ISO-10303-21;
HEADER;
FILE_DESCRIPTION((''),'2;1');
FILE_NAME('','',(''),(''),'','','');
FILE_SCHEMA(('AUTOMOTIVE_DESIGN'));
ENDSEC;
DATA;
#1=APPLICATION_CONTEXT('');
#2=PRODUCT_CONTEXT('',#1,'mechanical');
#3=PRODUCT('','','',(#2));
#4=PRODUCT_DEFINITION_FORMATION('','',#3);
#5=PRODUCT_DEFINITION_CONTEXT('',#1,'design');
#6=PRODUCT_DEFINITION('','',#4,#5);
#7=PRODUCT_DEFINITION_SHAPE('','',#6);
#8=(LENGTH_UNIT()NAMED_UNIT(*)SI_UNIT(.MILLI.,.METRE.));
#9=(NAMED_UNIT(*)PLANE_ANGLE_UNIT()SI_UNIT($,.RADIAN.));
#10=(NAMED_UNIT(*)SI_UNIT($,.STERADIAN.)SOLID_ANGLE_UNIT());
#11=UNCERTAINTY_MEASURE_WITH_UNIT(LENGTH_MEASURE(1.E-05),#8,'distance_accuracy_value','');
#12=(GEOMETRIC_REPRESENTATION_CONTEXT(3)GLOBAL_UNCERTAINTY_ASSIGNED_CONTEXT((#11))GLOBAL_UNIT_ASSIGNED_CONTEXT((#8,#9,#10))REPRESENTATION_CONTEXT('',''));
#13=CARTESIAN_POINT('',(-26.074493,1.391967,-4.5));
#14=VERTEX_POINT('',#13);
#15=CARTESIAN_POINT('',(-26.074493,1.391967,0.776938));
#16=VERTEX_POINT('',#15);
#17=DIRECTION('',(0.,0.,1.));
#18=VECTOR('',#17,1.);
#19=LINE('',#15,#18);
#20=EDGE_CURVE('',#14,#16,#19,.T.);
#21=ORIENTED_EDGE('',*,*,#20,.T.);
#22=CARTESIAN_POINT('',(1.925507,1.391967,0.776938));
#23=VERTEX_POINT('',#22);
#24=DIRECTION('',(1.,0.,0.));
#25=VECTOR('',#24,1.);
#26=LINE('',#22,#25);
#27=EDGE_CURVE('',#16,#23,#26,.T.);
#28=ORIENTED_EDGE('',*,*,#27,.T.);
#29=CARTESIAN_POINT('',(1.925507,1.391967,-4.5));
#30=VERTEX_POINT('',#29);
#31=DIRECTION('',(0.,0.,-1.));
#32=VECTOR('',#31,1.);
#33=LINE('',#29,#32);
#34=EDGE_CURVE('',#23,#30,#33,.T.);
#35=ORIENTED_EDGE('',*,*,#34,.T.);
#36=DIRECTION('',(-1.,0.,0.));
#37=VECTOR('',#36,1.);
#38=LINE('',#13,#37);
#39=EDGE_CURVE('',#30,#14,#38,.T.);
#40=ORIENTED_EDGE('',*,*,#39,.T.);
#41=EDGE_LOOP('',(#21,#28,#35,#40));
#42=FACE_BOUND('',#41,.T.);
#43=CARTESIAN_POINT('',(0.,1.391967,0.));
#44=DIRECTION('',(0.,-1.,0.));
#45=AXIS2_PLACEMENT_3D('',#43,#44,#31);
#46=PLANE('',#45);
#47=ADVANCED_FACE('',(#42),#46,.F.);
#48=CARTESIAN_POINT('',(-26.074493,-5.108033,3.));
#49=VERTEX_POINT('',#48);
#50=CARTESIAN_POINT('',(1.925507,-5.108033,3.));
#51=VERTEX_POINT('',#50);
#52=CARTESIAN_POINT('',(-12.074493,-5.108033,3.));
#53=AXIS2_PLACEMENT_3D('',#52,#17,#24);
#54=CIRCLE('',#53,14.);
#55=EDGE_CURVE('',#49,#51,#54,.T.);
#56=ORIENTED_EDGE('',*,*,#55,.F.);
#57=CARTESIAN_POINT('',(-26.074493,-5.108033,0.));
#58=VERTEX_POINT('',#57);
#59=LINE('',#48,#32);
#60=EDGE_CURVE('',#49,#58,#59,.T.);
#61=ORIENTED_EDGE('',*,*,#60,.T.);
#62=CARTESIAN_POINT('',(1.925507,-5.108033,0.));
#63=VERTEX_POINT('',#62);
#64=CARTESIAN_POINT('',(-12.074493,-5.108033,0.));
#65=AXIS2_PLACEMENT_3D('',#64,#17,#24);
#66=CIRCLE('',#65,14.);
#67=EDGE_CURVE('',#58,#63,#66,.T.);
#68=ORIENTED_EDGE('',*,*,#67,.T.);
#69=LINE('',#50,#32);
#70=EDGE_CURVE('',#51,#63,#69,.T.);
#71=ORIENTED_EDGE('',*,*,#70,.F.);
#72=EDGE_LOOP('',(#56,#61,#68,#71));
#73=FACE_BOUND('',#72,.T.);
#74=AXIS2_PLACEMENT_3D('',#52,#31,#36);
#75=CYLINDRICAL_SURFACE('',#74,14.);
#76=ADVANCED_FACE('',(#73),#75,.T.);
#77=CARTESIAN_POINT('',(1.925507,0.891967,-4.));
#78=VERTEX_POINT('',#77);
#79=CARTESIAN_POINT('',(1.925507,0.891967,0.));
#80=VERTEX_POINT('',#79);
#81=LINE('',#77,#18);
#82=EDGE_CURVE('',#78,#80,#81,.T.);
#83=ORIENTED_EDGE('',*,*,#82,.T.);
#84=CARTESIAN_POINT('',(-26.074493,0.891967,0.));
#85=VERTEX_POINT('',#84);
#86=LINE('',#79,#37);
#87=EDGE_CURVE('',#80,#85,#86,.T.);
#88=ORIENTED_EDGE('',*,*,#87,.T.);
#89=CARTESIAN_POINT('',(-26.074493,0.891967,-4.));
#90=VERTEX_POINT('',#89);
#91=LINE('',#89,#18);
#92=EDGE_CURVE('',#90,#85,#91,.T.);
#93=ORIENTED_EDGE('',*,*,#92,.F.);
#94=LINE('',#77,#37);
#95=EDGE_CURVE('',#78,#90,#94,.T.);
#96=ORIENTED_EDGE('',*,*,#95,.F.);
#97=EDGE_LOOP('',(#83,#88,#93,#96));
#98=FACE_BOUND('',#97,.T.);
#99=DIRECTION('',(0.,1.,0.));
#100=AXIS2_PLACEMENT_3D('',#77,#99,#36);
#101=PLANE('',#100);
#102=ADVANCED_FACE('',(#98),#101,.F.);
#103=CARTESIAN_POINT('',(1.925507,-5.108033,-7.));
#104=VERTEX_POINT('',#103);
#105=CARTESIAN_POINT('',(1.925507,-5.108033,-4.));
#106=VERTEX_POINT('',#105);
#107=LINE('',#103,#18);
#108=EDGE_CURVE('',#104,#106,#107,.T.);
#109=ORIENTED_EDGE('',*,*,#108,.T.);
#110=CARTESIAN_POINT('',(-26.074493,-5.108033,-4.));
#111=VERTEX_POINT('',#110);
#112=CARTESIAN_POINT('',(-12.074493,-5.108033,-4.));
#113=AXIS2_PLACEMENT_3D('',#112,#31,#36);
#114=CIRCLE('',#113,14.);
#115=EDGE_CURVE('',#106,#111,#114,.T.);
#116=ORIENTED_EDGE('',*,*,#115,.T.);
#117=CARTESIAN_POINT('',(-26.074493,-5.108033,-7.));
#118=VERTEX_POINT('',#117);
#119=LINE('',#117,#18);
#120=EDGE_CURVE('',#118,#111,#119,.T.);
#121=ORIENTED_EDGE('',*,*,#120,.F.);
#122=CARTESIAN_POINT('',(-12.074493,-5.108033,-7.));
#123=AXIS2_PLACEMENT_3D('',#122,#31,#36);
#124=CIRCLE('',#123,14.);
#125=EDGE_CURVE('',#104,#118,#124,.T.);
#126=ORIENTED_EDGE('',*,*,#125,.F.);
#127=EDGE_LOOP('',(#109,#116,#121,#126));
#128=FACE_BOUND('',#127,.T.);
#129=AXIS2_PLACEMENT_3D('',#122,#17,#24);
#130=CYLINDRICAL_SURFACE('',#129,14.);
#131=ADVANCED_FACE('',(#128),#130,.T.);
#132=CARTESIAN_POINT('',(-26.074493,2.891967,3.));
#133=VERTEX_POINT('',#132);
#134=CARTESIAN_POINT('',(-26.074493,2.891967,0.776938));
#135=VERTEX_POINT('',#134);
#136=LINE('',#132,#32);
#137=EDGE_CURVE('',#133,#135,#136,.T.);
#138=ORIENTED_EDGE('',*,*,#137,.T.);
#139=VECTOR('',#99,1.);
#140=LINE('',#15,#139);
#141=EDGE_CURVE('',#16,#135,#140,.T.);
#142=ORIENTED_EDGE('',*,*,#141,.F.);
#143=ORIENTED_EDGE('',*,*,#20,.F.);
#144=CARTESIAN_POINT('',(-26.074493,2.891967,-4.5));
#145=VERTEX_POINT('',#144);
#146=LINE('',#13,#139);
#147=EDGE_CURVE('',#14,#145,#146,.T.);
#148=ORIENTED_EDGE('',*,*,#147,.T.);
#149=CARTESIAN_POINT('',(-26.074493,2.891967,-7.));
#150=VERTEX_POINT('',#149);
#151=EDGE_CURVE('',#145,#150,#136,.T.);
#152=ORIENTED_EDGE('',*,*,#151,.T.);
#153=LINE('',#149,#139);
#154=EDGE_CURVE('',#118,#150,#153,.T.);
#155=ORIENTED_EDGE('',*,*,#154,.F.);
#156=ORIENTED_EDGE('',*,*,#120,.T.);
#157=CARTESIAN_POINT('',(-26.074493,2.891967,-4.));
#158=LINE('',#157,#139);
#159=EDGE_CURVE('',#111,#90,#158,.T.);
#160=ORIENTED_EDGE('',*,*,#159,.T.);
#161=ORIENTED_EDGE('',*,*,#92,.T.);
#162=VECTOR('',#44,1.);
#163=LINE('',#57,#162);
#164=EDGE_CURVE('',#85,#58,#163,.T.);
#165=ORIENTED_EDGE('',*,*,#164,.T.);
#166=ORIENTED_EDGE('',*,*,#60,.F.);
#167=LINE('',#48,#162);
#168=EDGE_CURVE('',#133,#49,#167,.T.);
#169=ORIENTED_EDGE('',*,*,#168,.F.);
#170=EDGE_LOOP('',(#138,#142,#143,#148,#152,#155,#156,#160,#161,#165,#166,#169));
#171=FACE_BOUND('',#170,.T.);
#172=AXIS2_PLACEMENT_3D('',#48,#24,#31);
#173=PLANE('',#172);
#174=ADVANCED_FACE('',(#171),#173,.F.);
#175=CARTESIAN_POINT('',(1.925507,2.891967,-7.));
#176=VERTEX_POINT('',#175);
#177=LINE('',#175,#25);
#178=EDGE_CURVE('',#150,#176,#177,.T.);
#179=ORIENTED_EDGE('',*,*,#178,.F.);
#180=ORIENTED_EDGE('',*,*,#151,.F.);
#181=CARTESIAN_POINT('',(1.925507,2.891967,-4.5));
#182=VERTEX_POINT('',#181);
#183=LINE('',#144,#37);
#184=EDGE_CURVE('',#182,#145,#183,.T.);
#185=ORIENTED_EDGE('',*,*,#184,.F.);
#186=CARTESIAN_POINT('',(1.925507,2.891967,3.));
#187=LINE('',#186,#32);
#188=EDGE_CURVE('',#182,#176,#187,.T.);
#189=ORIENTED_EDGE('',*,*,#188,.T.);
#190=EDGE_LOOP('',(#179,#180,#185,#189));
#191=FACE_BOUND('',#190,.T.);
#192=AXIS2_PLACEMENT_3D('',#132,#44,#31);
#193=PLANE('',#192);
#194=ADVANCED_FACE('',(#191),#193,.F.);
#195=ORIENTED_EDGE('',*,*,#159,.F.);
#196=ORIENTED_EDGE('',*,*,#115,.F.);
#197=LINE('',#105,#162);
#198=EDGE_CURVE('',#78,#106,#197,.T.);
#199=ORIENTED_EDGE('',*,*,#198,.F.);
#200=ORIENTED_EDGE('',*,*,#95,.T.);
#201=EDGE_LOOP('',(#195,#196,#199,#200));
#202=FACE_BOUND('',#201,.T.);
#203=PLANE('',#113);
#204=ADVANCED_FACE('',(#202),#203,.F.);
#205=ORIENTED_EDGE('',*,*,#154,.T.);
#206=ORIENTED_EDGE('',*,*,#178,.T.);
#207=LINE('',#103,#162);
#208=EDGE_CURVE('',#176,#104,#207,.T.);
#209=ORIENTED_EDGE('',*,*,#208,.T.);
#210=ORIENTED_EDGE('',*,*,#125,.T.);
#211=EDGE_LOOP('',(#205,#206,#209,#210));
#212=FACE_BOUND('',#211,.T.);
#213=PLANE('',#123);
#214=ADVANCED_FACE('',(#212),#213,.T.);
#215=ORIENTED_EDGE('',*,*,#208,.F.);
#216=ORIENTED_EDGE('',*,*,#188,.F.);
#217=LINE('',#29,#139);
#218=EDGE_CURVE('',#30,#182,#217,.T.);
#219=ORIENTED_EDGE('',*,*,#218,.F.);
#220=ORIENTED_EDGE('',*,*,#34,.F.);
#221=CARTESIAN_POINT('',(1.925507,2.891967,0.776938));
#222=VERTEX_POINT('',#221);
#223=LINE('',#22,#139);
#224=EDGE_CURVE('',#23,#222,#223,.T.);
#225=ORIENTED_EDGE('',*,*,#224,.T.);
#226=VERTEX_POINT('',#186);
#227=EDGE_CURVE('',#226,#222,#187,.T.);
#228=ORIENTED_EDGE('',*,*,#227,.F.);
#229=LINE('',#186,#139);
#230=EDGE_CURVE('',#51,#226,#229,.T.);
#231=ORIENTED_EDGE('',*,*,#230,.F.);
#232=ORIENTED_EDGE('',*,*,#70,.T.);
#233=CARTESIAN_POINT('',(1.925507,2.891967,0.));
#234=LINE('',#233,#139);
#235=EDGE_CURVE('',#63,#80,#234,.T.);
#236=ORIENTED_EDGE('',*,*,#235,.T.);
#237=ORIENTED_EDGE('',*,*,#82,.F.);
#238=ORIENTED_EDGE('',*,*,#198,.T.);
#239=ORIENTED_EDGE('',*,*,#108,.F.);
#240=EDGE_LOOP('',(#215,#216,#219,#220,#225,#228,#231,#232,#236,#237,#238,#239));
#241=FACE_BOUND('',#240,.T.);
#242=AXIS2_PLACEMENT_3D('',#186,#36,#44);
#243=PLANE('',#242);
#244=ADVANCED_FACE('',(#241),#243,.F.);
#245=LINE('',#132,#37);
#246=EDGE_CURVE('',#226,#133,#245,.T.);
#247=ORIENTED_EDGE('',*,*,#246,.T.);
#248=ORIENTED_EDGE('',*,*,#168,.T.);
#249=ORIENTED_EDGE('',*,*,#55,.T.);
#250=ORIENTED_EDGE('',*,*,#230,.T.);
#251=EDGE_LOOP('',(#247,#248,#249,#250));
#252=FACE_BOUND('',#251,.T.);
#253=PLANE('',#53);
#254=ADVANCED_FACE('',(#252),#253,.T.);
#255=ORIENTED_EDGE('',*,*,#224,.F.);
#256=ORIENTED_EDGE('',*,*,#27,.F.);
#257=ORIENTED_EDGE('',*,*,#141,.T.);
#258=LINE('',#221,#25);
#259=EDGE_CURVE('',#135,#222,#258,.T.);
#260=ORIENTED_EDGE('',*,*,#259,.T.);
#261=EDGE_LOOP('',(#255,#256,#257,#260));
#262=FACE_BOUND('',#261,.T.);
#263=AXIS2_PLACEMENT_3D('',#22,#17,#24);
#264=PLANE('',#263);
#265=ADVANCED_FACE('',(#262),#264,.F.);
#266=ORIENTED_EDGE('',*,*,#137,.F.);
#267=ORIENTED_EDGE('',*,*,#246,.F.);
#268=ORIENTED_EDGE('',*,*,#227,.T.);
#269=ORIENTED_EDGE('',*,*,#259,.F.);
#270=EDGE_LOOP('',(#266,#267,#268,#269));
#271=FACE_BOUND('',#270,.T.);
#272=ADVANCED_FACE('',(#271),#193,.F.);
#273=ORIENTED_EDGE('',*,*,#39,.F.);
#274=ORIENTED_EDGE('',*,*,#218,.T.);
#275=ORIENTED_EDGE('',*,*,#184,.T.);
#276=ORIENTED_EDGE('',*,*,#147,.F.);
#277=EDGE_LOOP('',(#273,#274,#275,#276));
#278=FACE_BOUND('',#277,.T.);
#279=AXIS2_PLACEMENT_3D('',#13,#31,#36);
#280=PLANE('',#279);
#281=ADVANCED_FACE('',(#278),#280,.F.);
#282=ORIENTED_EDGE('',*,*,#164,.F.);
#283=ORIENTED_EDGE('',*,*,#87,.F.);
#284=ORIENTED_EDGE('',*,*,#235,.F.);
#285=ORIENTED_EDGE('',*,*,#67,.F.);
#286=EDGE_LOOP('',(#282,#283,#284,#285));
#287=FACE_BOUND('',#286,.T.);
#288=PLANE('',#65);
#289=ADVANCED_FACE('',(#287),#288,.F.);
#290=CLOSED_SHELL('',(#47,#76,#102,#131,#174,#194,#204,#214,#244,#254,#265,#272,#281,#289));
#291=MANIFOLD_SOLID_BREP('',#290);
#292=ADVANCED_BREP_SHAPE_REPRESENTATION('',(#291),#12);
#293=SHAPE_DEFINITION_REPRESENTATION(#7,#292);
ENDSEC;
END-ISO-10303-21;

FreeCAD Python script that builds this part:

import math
import FreeCAD as App
import Part
import Sketcher

doc = App.newDocument("Part")
body = doc.addObject("PartDesign::Body", "Body")

sketch1 = doc.addObject("Sketcher::SketchObject", "Sketch")
body.addObject(sketch1)
sketch1.AttachmentSupport = (doc.XY_Plane, [""])
sketch1.MapMode = "FlatFace"
sketch1.addGeometry([
    Part.LineSegment(App.Vector(2, 3, 0), App.Vector(-26, 3, 0)),
    Part.LineSegment(App.Vector(-26, 3, 0), App.Vector(-26, -5, 0)),
    Part.ArcOfCircle(Part.Circle(App.Vector(-12, -5, 0), App.Vector(0, 0, 1), 14), math.radians(180), math.radians(360)),
    Part.LineSegment(App.Vector(2, -5, 0), App.Vector(2, 3, 0)),
], False)
sketch1.addConstraint([
    Sketcher.Constraint("Coincident", 0, 2, 1, 1),
    Sketcher.Constraint("Tangent", 1, 2, 2, 1),
    Sketcher.Constraint("Tangent", 2, 2, 3, 1),
    Sketcher.Constraint("Coincident", 3, 2, 0, 1),
    Sketcher.Constraint("Horizontal", 0),
    Sketcher.Constraint("Vertical", 1),
    Sketcher.Constraint("Vertical", 3),
    Sketcher.Constraint("Radius", 2, 14.0),
    Sketcher.Constraint("DistanceY", 1, 2, 1, 1, 8.0),
    Sketcher.Constraint("DistanceX", 2, 3, -1, 1, 12.074493),
    Sketcher.Constraint("DistanceY", 2, 3, -1, 1, 5.108033),
])
pad1 = doc.addObject("PartDesign::Pad", "Pad")
body.addObject(pad1)
pad1.Profile = sketch1
pad1.Length = 3

sketch2 = doc.addObject("Sketcher::SketchObject", "Sketch001")
body.addObject(sketch2)
sketch2.AttachmentSupport = (doc.XY_Plane, [""])
sketch2.MapMode = "FlatFace"
sketch2.addGeometry([
    Part.LineSegment(App.Vector(1.9, 2.9, 0), App.Vector(1.9, 0.9, 0)),
    Part.LineSegment(App.Vector(1.9, 0.9, 0), App.Vector(-26.1, 0.9, 0)),
    Part.LineSegment(App.Vector(-26.1, 0.9, 0), App.Vector(-26.1, 2.9, 0)),
    Part.LineSegment(App.Vector(-26.1, 2.9, 0), App.Vector(1.9, 2.9, 0)),
], False)
sketch2.addConstraint([
    Sketcher.Constraint("Coincident", 0, 2, 1, 1),
    Sketcher.Constraint("Coincident", 1, 2, 2, 1),
    Sketcher.Constraint("Coincident", 2, 2, 3, 1),
    Sketcher.Constraint("Coincident", 3, 2, 0, 1),
    Sketcher.Constraint("Vertical", 0),
    Sketcher.Constraint("Horizontal", 1),
    Sketcher.Constraint("Vertical", 2),
    Sketcher.Constraint("Horizontal", 3),
    Sketcher.Constraint("DistanceX", 1, 2, 1, 1, 28.0),
    Sketcher.Constraint("DistanceY", 0, 2, 0, 1, 2.0),
    Sketcher.Constraint("DistanceX", -1, 1, 0, 2, 1.925507),
    Sketcher.Constraint("DistanceY", -1, 1, 0, 2, 0.891967),
])
pad2 = doc.addObject("PartDesign::Pad", "Pad001")
body.addObject(pad2)
pad2.Profile = sketch2
pad2.Length = 4
pad2.Reversed = True

sketch3 = doc.addObject("Sketcher::SketchObject", "Sketch002")
body.addObject(sketch3)
sketch3.AttachmentSupport = (doc.XY_Plane, [""])
sketch3.MapMode = "FlatFace"
sketch3.AttachmentOffset = App.Placement(App.Vector(0, 0, -7), App.Rotation())
sketch3.addGeometry([
    Part.LineSegment(App.Vector(-26, 3, 0), App.Vector(2, 3, 0)),
    Part.LineSegment(App.Vector(2, 3, 0), App.Vector(2, -5, 0)),
    Part.ArcOfCircle(Part.Circle(App.Vector(-12, -5, 0), App.Vector(0, 0, 1), 14), math.radians(180), math.radians(360)),
    Part.LineSegment(App.Vector(-26, -5, 0), App.Vector(-26, 3, 0)),
], False)
sketch3.addConstraint([
    Sketcher.Constraint("Coincident", 0, 2, 1, 1),
    Sketcher.Constraint("Tangent", 1, 2, 2, 2),
    Sketcher.Constraint("Tangent", 2, 1, 3, 1),
    Sketcher.Constraint("Coincident", 3, 2, 0, 1),
    Sketcher.Constraint("Horizontal", 0),
    Sketcher.Constraint("Vertical", 1),
    Sketcher.Constraint("Vertical", 3),
    Sketcher.Constraint("Radius", 2, 14.0),
    Sketcher.Constraint("DistanceY", 1, 2, 1, 1, 8.0),
    Sketcher.Constraint("DistanceX", 2, 3, -1, 1, 12.074493),
    Sketcher.Constraint("DistanceY", 2, 3, -1, 1, 5.108033),
])
pad3 = doc.addObject("PartDesign::Pad", "Pad002")
body.addObject(pad3)
pad3.Profile = sketch3
pad3.Length = 3

sketch4 = doc.addObject("Sketcher::SketchObject", "Sketch003")
body.addObject(sketch4)
sketch4.AttachmentSupport = (doc.XZ_Plane, [""])
sketch4.MapMode = "FlatFace"
sketch4.AttachmentOffset = App.Placement(App.Vector(0, 0, -2.891967), App.Rotation())
sketch4.addGeometry([
    Part.LineSegment(App.Vector(-26, -4, 0), App.Vector(-26, 1, 0)),
    Part.LineSegment(App.Vector(-26, 1, 0), App.Vector(2, 1, 0)),
    Part.LineSegment(App.Vector(2, 1, 0), App.Vector(2, -4, 0)),
    Part.LineSegment(App.Vector(2, -4, 0), App.Vector(-26, -4, 0)),
], False)
sketch4.addConstraint([
    Sketcher.Constraint("Coincident", 0, 2, 1, 1),
    Sketcher.Constraint("Coincident", 1, 2, 2, 1),
    Sketcher.Constraint("Coincident", 2, 2, 3, 1),
    Sketcher.Constraint("Coincident", 3, 2, 0, 1),
    Sketcher.Constraint("Vertical", 0),
    Sketcher.Constraint("Horizontal", 1),
    Sketcher.Constraint("Vertical", 2),
    Sketcher.Constraint("Horizontal", 3),
    Sketcher.Constraint("DistanceX", 1, 1, 1, 2, 28.0),
    Sketcher.Constraint("DistanceY", 2, 2, -1, 1, 4.5),
    Sketcher.Constraint("DistanceY", 0, 1, 0, 2, 5.276938),
    Sketcher.Constraint("DistanceX", 0, 2, -1, 1, 26.074493),
])
pocket1 = doc.addObject("PartDesign::Pocket", "Pocket")
body.addObject(pocket1)
pocket1.Profile = sketch4
pocket1.Length = 1.5
pocket1.Reversed = True

doc.recompute()
